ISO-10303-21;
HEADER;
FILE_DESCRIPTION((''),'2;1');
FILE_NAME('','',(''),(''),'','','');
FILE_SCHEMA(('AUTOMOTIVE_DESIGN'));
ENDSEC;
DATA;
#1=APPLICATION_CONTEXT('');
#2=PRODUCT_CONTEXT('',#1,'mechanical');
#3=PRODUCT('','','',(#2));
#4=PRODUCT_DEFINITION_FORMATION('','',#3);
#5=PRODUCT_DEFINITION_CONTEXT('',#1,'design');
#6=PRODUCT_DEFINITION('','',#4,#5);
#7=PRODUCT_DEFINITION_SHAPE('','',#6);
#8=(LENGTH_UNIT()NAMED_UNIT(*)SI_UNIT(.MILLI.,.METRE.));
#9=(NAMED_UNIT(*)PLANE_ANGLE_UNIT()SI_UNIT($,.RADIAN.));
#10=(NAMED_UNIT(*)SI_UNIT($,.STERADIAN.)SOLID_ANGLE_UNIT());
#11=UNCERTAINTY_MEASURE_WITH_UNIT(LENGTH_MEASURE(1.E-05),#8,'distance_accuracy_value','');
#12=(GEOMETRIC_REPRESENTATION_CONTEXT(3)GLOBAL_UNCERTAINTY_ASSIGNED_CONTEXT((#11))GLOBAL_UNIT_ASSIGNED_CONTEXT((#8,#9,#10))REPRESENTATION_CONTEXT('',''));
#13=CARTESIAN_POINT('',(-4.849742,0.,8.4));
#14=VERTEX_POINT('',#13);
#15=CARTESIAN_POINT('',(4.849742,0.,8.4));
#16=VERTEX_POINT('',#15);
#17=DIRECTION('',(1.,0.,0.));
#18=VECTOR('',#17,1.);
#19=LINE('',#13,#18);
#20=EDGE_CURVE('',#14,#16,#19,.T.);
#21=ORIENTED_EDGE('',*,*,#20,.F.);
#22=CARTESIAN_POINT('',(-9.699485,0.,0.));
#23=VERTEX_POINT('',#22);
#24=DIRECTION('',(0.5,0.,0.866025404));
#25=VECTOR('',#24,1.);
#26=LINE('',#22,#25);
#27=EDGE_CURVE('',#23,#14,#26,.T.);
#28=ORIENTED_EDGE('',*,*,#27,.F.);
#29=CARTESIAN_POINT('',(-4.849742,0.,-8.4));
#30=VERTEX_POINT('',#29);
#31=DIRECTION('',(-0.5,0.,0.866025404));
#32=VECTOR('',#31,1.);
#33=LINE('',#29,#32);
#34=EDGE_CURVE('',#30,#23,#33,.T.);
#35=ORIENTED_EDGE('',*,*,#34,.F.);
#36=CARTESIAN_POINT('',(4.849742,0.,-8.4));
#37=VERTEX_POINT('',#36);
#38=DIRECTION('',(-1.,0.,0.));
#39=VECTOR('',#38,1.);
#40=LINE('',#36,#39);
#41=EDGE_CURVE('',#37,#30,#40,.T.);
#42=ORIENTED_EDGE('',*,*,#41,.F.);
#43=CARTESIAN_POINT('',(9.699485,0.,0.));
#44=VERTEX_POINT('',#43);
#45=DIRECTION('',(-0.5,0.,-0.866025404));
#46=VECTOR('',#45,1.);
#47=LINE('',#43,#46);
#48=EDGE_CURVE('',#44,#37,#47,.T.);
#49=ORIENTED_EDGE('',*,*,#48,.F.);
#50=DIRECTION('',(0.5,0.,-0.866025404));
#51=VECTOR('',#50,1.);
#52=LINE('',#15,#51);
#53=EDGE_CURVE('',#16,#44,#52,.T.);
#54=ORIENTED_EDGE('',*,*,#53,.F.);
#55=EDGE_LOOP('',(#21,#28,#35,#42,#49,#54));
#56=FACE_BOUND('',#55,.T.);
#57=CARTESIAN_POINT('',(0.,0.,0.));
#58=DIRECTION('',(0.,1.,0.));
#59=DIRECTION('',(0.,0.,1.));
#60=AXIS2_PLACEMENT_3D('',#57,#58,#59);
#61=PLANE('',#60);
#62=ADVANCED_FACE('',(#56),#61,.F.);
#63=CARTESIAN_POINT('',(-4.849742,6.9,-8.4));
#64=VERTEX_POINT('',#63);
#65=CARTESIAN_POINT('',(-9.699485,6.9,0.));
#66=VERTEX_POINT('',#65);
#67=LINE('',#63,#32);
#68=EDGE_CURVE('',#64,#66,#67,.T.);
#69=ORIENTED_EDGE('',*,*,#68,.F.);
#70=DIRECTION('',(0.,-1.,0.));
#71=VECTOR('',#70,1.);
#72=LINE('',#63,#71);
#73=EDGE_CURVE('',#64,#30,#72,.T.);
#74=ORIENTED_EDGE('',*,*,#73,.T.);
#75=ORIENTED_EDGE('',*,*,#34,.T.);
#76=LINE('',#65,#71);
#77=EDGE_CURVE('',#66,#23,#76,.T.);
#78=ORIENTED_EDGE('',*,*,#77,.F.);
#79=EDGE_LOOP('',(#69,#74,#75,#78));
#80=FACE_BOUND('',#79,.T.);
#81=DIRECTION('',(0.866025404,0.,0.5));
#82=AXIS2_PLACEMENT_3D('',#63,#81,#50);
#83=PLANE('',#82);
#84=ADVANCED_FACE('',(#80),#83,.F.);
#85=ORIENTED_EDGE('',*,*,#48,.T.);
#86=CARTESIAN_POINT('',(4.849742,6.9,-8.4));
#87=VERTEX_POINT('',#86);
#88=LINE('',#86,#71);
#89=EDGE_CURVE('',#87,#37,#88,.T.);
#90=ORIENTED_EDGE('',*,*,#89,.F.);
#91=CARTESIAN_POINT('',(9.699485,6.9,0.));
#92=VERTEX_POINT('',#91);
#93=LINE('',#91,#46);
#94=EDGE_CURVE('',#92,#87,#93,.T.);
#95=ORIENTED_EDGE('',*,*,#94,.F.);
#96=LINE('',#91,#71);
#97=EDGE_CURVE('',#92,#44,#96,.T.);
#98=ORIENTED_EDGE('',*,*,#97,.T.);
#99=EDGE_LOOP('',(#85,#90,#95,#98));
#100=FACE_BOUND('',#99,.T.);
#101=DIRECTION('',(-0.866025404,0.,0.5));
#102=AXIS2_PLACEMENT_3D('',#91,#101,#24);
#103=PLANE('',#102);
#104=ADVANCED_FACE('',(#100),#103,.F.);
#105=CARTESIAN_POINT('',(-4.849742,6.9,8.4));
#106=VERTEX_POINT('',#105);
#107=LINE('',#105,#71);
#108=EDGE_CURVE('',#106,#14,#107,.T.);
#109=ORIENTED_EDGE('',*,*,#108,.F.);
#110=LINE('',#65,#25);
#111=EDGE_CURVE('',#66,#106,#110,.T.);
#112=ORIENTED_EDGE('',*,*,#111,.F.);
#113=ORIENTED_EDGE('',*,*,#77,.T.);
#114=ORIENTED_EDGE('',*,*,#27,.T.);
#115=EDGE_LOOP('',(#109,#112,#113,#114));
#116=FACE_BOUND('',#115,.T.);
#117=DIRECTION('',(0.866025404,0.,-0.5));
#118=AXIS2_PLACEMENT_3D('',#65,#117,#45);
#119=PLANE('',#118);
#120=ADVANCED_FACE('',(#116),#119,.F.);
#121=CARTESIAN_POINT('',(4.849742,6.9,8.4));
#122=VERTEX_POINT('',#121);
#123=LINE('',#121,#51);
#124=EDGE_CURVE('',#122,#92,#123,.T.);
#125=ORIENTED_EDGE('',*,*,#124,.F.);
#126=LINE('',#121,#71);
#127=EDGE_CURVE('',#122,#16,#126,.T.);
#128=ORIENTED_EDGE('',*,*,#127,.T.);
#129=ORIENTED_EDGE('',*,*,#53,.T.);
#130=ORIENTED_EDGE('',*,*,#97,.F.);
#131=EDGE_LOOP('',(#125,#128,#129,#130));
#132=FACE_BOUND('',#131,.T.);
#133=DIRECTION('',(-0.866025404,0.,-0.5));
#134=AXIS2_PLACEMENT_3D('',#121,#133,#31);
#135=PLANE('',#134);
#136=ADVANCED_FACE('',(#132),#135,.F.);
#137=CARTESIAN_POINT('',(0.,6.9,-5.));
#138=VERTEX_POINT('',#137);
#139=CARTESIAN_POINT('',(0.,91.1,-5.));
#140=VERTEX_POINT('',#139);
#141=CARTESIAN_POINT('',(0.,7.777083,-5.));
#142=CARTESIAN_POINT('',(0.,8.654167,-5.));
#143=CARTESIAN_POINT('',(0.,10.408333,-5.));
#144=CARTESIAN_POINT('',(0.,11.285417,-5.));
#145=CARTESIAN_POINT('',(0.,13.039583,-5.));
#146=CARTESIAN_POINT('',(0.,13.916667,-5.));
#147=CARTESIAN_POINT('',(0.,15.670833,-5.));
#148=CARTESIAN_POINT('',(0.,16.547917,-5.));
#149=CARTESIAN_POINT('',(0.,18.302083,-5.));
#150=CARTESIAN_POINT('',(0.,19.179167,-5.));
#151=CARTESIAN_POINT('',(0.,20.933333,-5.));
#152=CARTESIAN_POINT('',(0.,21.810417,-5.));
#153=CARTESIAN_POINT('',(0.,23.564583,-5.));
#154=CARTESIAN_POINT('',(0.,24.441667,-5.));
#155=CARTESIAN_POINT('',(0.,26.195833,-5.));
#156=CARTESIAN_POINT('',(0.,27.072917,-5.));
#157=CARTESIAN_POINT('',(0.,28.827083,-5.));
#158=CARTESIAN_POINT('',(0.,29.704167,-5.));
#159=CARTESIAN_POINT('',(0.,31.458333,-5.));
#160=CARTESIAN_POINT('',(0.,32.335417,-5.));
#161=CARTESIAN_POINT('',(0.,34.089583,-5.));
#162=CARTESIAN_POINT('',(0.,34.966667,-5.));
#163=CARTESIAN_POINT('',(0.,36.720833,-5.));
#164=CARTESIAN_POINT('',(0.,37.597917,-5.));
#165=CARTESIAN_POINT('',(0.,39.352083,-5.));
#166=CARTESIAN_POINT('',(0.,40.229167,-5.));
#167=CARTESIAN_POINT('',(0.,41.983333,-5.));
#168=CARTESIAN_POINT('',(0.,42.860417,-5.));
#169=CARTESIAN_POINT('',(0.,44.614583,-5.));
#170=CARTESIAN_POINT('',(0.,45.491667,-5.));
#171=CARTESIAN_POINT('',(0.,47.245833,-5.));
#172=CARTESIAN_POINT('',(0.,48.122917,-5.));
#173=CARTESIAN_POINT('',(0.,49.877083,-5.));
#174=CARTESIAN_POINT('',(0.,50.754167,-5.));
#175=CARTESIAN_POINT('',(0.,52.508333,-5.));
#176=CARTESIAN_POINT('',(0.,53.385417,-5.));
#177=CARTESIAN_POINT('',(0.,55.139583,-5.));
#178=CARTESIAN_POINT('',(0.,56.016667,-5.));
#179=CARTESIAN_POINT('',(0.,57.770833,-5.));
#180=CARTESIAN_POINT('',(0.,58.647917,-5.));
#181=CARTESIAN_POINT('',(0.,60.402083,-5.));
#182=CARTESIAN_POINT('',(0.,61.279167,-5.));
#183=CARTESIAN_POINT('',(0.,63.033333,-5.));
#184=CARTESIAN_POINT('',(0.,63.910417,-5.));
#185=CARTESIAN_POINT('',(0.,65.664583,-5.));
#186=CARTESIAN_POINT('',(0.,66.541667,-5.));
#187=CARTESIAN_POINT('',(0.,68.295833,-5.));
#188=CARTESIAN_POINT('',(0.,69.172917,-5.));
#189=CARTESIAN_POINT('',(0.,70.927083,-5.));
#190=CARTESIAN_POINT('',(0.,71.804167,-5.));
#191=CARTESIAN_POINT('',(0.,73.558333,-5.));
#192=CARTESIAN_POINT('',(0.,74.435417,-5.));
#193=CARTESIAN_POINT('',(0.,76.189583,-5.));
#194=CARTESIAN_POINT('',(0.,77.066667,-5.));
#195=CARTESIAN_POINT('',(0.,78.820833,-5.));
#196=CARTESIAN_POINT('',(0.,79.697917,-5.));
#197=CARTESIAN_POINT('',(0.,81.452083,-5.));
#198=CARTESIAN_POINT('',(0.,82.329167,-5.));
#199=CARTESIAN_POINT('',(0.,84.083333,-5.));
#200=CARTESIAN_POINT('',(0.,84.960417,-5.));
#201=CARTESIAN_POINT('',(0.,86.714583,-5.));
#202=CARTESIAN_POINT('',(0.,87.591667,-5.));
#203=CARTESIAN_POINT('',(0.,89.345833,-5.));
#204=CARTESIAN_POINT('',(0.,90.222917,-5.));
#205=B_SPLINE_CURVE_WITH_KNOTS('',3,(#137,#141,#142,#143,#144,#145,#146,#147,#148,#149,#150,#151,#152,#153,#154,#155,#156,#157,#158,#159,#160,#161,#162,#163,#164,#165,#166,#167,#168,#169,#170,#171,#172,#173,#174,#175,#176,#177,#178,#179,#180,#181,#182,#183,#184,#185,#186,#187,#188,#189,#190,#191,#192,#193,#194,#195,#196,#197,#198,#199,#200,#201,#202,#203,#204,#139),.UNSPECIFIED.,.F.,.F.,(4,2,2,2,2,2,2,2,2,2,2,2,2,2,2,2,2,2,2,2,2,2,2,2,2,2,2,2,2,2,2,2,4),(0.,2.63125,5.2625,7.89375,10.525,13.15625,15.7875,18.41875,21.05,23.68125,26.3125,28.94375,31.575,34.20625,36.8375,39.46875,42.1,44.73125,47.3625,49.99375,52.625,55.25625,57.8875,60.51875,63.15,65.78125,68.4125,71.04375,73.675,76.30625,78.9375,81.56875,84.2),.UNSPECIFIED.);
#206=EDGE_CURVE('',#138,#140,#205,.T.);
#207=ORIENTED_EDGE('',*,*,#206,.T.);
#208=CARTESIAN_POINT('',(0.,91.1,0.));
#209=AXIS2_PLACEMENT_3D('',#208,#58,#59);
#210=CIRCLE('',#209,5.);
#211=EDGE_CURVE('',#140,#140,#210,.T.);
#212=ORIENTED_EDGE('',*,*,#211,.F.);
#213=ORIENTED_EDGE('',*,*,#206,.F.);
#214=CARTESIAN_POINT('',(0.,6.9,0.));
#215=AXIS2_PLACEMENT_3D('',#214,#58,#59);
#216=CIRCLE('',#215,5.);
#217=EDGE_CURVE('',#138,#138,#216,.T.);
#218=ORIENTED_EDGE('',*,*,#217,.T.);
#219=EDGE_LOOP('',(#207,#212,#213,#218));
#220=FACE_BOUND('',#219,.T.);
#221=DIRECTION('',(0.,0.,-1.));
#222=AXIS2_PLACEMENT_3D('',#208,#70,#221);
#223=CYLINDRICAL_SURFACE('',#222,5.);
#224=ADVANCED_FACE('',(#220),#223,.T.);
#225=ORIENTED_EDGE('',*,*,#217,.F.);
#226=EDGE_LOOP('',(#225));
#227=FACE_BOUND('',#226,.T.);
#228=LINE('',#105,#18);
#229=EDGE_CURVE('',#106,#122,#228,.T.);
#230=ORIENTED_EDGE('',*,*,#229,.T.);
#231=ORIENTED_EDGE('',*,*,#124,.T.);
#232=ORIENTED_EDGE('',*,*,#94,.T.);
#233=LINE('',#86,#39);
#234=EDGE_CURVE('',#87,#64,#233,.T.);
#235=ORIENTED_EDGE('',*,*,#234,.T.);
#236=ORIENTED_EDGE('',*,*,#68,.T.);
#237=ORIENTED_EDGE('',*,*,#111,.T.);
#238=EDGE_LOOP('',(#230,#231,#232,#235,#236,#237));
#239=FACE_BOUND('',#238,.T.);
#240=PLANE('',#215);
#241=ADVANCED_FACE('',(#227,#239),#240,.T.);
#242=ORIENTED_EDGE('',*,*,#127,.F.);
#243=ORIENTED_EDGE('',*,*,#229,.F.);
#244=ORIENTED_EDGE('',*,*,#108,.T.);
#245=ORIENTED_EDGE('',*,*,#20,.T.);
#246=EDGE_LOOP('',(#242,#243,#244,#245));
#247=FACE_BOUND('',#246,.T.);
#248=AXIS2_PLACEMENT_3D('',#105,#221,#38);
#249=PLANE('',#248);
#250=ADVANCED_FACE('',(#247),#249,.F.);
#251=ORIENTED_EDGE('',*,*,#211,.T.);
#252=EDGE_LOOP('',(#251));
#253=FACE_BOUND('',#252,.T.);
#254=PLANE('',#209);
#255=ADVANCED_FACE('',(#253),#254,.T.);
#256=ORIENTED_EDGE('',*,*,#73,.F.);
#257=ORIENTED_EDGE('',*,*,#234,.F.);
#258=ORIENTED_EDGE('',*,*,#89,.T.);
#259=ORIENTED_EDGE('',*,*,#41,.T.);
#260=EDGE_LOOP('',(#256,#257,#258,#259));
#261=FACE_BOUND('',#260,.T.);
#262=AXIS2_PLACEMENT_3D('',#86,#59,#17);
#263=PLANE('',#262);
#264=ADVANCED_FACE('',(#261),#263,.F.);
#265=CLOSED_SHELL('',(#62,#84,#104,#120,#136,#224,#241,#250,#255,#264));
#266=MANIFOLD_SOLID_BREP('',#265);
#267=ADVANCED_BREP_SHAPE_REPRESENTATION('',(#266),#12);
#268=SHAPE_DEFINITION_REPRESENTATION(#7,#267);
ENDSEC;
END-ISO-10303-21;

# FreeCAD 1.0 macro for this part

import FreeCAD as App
import Part
import Sketcher
from FreeCAD import Vector
Q = App.Units.Quantity


def add_polygon(sketch, points):
    """Adds a closed chain of lines whose ends are joined by coincident constraints."""
    first, n = sketch.GeometryCount, len(points)
    for a, b in zip(points, points[1:] + points[:1]):
        sketch.addGeometry(Part.LineSegment(App.Vector(*a, 0), App.Vector(*b, 0)), False)
    for i in range(n):
        sketch.addConstraint(Sketcher.Constraint("Coincident", first + i, 2, first + (i + 1) % n, 1))

doc = App.newDocument("Part")
body = doc.addObject("PartDesign::Body", "Body")

# Sketch on XZ plane
sketch1 = doc.addObject("Sketcher::SketchObject", "Sketch")
body.addObject(sketch1)
sketch1.AttachmentSupport = (doc.XZ_Plane, [""])
sketch1.MapMode = "FlatFace"
add_polygon(sketch1, [(5, 8), (10, 0), (5, -8), (-5, -8), (-10, 0), (-5, 8)])  # lines 0-5
sketch1.addGeometry(Part.Circle(Vector(0, 0, 0), Vector(0, 0, 1), 5), False)  # 6
sketch1.addConstraint(Sketcher.Constraint("Horizontal", 2))
sketch1.addConstraint(Sketcher.Constraint("Horizontal", 5))
sketch1.addConstraint(Sketcher.Constraint("Coincident", 6, 3, -1, 1))
sketch1.addConstraint(Sketcher.Constraint("Symmetric", 0, 2, 3, 2, -1, 1))
sketch1.addConstraint(Sketcher.Constraint("Symmetric", 1, 2, 4, 2, -1, 1))
sketch1.addConstraint(Sketcher.Constraint("PointOnObject", 0, 2, -1))
sketch1.addConstraint(Sketcher.Constraint("Parallel", 0, 3))
sketch1.addConstraint(Sketcher.Constraint("Vertical", 2, 2, 4, 2))
sketch1.addConstraint(Sketcher.Constraint("Diameter", 6, Q("10 mm")))
sketch1.addConstraint(Sketcher.Constraint("Angle", 0, Q("-60 deg")))
sketch1.addConstraint(Sketcher.Constraint("DistanceY", 1, 2, -1, 1, Q("8.4 mm")))
sketch1.addConstraint(Sketcher.Constraint("DistanceX", 2, 2, 2, 1, Q("9.699485 mm")))
pad1 = doc.addObject("PartDesign::Pad", "Pad")
body.addObject(pad1)
pad1.Profile = sketch1
pad1.Length = 6.9
pad1.Reversed = True

# Sketch on XZ plane
sketch2 = doc.addObject("Sketcher::SketchObject", "Sketch001")
body.addObject(sketch2)
sketch2.AttachmentSupport = (doc.XZ_Plane, [""])
sketch2.MapMode = "FlatFace"
sketch2.addGeometry(Part.Circle(Vector(0, 0, 0), Vector(0, 0, 1), 5), False)
sketch2.addConstraint(Sketcher.Constraint("Coincident", 0, 3, -1, 1))
sketch2.addConstraint(Sketcher.Constraint("Diameter", 0, Q("10 mm")))
pad2 = doc.addObject("PartDesign::Pad", "Pad001")
body.addObject(pad2)
pad2.Profile = sketch2
pad2.Length = 91.1
pad2.Reversed = True

doc.recompute()
